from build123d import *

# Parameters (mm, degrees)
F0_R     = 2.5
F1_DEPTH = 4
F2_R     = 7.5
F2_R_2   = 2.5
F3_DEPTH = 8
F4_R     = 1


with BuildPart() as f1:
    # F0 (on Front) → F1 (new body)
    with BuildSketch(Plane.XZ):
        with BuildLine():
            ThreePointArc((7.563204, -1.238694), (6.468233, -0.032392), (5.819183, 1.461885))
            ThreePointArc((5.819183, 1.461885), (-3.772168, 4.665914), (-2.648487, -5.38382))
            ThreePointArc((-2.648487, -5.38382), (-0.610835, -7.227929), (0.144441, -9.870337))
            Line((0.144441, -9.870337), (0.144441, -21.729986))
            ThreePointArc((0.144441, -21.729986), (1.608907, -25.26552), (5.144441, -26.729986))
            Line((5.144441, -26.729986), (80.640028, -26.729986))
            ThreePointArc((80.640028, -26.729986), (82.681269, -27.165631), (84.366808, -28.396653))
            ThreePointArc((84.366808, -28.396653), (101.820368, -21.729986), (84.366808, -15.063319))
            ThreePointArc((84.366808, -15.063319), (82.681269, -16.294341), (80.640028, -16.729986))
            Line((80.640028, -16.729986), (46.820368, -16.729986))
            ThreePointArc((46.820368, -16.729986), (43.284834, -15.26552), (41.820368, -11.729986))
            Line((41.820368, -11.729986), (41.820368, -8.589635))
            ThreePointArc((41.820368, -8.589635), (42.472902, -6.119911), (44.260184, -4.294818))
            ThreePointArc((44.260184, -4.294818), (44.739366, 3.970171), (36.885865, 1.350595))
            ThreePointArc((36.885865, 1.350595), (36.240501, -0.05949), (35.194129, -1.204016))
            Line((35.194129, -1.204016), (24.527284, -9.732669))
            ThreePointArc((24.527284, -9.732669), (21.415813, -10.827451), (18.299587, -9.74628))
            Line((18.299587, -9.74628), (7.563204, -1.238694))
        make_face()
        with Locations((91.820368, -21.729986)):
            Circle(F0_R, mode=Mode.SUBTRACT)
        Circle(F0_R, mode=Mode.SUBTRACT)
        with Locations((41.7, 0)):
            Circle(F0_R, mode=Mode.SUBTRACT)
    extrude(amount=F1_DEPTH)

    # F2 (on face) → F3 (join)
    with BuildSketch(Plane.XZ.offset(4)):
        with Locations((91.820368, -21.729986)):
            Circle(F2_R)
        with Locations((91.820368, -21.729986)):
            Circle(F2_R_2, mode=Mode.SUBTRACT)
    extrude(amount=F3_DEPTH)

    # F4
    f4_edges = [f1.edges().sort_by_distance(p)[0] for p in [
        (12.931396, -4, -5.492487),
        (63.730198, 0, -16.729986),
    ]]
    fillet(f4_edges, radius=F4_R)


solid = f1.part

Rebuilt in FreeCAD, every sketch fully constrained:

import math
import FreeCAD as App
import Part
import Sketcher

V = App.Vector
Q = App.Units.Quantity


def edges_at(feature, points):
    """Names of the edges that pass closest to the given points."""
    edges = feature.Shape.Edges
    near = lambda p: min(range(len(edges)), key=lambda i: edges[i].distToShape(Part.Vertex(*p))[0])
    return sorted({f"Edge{near(p) + 1}" for p in points})

doc = App.newDocument("Part")
body = doc.addObject("PartDesign::Body", "Body")

sketch1 = body.newObject("Sketcher::SketchObject", "Sketch")
sketch1.AttachmentSupport = (doc.getObject("XZ_Plane"), [""])
sketch1.MapMode = "FlatFace"
sketch1.addGeometry(Part.ArcOfCircle(Part.Circle(V(10.7, 2.7, 0), V(0, 0, 1), 5), math.radians(-166), math.radians(-128)), False)
sketch1.addGeometry(Part.ArcOfCircle(Part.Circle(V(0, 0, 0), V(0, 0, 1), 6), math.radians(14), math.radians(244)), False)
sketch1.addGeometry(Part.ArcOfCircle(Part.Circle(V(-4.9, -9.9, 0), V(0, 0, 1), 5), math.radians(0), math.radians(64)), False)
sketch1.addGeometry(Part.LineSegment(V(0.1, -9.9, 0), V(0.1, -21.7, 0)), False)
sketch1.addGeometry(Part.ArcOfCircle(Part.Circle(V(5.1, -21.7, 0), V(0, 0, 1), 5), math.radians(180), math.radians(270)), False)
sketch1.addGeometry(Part.LineSegment(V(5.1, -26.7, 0), V(80.6, -26.7, 0)), False)
sketch1.addGeometry(Part.ArcOfCircle(Part.Circle(V(80.6, -31.7, 0), V(0, 0, 1), 5), math.radians(42), math.radians(90)), False)
sketch1.addGeometry(Part.ArcOfCircle(Part.Circle(V(91.8, -21.7, 0), V(0, 0, 1), 10), math.radians(-138), math.radians(138)), False)
sketch1.addGeometry(Part.ArcOfCircle(Part.Circle(V(80.6, -11.7, 0), V(0, 0, 1), 5), math.radians(-90), math.radians(-42)), False)
sketch1.addGeometry(Part.LineSegment(V(80.6, -16.7, 0), V(46.8, -16.7, 0)), False)
sketch1.addGeometry(Part.ArcOfCircle(Part.Circle(V(46.8, -11.7, 0), V(0, 0, 1), 5), math.radians(180), math.radians(270)), False)
sketch1.addGeometry(Part.LineSegment(V(41.8, -11.7, 0), V(41.8, -8.6, 0)), False)
sketch1.addGeometry(Part.ArcOfCircle(Part.Circle(V(46.8, -8.6, 0), V(0, 0, 1), 5), math.radians(121), math.radians(180)), False)
sketch1.addGeometry(Part.ArcOfCircle(Part.Circle(V(41.7, 0, 0), V(0, 0, 1), 5), math.radians(-59), math.radians(164)), False)
sketch1.addGeometry(Part.ArcOfCircle(Part.Circle(V(32.1, 2.7, 0), V(0, 0, 1), 5), math.radians(-51), math.radians(-16)), False)
sketch1.addGeometry(Part.LineSegment(V(35.2, -1.2, 0), V(24.5, -9.7, 0)), False)
sketch1.addGeometry(Part.ArcOfCircle(Part.Circle(V(21.4, -5.8, 0), V(0, 0, 1), 5), math.radians(-128), math.radians(-51)), False)
sketch1.addGeometry(Part.LineSegment(V(18.3, -9.7, 0), V(7.6, -1.2, 0)), False)
sketch1.addGeometry(Part.Circle(V(91.8, -21.7, 0), V(0, 0, 1), 2.5), False)
sketch1.addGeometry(Part.Circle(V(0, 0, 0), V(0, 0, 1), 2.5), False)
sketch1.addGeometry(Part.Circle(V(41.7, 0, 0), V(0, 0, 1), 2.5), False)
sketch1.addConstraint(Sketcher.Constraint("Tangent", 0, 1, 1, 1))
sketch1.addConstraint(Sketcher.Constraint("Tangent", 1, 2, 2, 2))
sketch1.addConstraint(Sketcher.Constraint("Tangent", 2, 1, 3, 1))
sketch1.addConstraint(Sketcher.Constraint("Tangent", 3, 2, 4, 1))
sketch1.addConstraint(Sketcher.Constraint("Tangent", 4, 2, 5, 1))
sketch1.addConstraint(Sketcher.Constraint("Tangent", 5, 2, 6, 2))
sketch1.addConstraint(Sketcher.Constraint("Tangent", 6, 1, 7, 1))
sketch1.addConstraint(Sketcher.Constraint("Tangent", 7, 2, 8, 2))
sketch1.addConstraint(Sketcher.Constraint("Tangent", 8, 1, 9, 1))
sketch1.addConstraint(Sketcher.Constraint("Tangent", 9, 2, 10, 2))
sketch1.addConstraint(Sketcher.Constraint("Tangent", 10, 1, 11, 1))
sketch1.addConstraint(Sketcher.Constraint("Tangent", 11, 2, 12, 2))
sketch1.addConstraint(Sketcher.Constraint("Tangent", 12, 1, 13, 1))
sketch1.addConstraint(Sketcher.Constraint("Tangent", 13, 2, 14, 2))
sketch1.addConstraint(Sketcher.Constraint("Tangent", 14, 1, 15, 1))
sketch1.addConstraint(Sketcher.Constraint("Tangent", 15, 2, 16, 2))
sketch1.addConstraint(Sketcher.Constraint("Tangent", 16, 1, 17, 1))
sketch1.addConstraint(Sketcher.Constraint("Tangent", 17, 2, 0, 2))
sketch1.addConstraint(Sketcher.Constraint("Vertical", 3))
sketch1.addConstraint(Sketcher.Constraint("Horizontal", 5))
sketch1.addConstraint(Sketcher.Constraint("Horizontal", 9))
sketch1.addConstraint(Sketcher.Constraint("Vertical", 11))
sketch1.addConstraint(Sketcher.Constraint("Coincident", 1, 3, -1, 1))
sketch1.addConstraint(Sketcher.Constraint("Coincident", 19, 3, -1, 1))
sketch1.addConstraint(Sketcher.Constraint("Coincident", 18, 3, 7, 3))
sketch1.addConstraint(Sketcher.Constraint("Coincident", 20, 3, 13, 3))
sketch1.addConstraint(Sketcher.Constraint("Equal", 2, 4))
sketch1.addConstraint(Sketcher.Constraint("Equal", 6, 8))
sketch1.addConstraint(Sketcher.Constraint("Equal", 4, 10))
sketch1.addConstraint(Sketcher.Constraint("Equal", 10, 12))
sketch1.addConstraint(Sketcher.Constraint("Equal", 12, 13))
sketch1.addConstraint(Sketcher.Constraint("Equal", 13, 14))
sketch1.addConstraint(Sketcher.Constraint("Equal", 14, 16))
sketch1.addConstraint(Sketcher.Constraint("Equal", 18, 19))
sketch1.addConstraint(Sketcher.Constraint("Equal", 19, 20))
sketch1.addConstraint(Sketcher.Constraint("PointOnObject", 13, 3, -1))
sketch1.addConstraint(Sketcher.Constraint("Horizontal", 4, 3, 7, 3))
sketch1.addConstraint(Sketcher.Constraint("Vertical", 6, 3, 8, 3))
sketch1.addConstraint(Sketcher.Constraint("Diameter", 18, Q("5 mm")))
sketch1.addConstraint(Sketcher.Constraint("Radius", 1, Q("6 mm")))
sketch1.addConstraint(Sketcher.Constraint("Radius", 2, Q("4.999999 mm")))
sketch1.addConstraint(Sketcher.Constraint("Radius", 7, Q("10 mm")))
sketch1.addConstraint(Sketcher.Constraint("DistanceX", 10, 3, 7, 3, Q("45 mm")))
sketch1.addConstraint(Sketcher.Constraint("DistanceX", -1, 1, 13, 3, Q("41.7 mm")))
sketch1.addConstraint(Sketcher.Constraint("Radius", 0, Q("5.000006 mm")))
sketch1.addConstraint(Sketcher.Constraint("Radius", 6, Q("4.999997 mm")))
sketch1.addConstraint(Sketcher.Constraint("Distance", 17, Q("13.698501 mm")))
sketch1.addConstraint(Sketcher.Constraint("DistanceY", 3, 2, 3, 1, Q("11.859649 mm")))
sketch1.addConstraint(Sketcher.Constraint("DistanceY", 11, 1, 11, 2, Q("3.140351 mm")))
sketch1.addConstraint(Sketcher.Constraint("DistanceX", 14, 3, 14, 1, Q("3.1224 mm")))
sketch1.addConstraint(Sketcher.Constraint("DistanceY", 12, 1, 14, 1, Q("3.090802 mm")))
sketch1.addConstraint(Sketcher.Constraint("DistanceX", 16, 1, 16, 3, Q("3.105299 mm")))
sketch1.addConstraint(Sketcher.Constraint("DistanceX", 5, 1, 5, 2, Q("75.495587 mm")))
pad1 = body.newObject("PartDesign::Pad", "Pad")
pad1.Profile = sketch1
pad1.Length = 4

sketch2 = body.newObject("Sketcher::SketchObject", "Sketch001")
sketch2.AttachmentSupport = (doc.getObject("XZ_Plane"), [""])
sketch2.MapMode = "FlatFace"
sketch2.AttachmentOffset = App.Placement(V(0, 0, 4), App.Rotation())
sketch2.addGeometry(Part.Circle(V(91.8, -21.7, 0), V(0, 0, 1), 7.5), False)
sketch2.addGeometry(Part.Circle(V(91.8, -21.7, 0), V(0, 0, 1), 2.5), False)
sketch2.addConstraint(Sketcher.Constraint("Coincident", 1, 3, 0, 3))
sketch2.addConstraint(Sketcher.Constraint("Diameter", 0, Q("15 mm")))
sketch2.addConstraint(Sketcher.Constraint("Diameter", 1, Q("5 mm")))
sketch2.addConstraint(Sketcher.Constraint("DistanceX", -1, 1, 0, 3, Q("91.820368 mm")))
sketch2.addConstraint(Sketcher.Constraint("DistanceY", 0, 3, -1, 1, Q("21.729986 mm")))
pad2 = body.newObject("PartDesign::Pad", "Pad001")
pad2.Profile = sketch2
pad2.Length = 8
doc.recompute()

fillet = body.newObject("PartDesign::Fillet", "Fillet")
fillet.Base = (pad2, edges_at(pad2, [(12.931, -4, -5.492), (63.73, 0, -16.73)]))
fillet.Radius = 1

doc.recompute()
